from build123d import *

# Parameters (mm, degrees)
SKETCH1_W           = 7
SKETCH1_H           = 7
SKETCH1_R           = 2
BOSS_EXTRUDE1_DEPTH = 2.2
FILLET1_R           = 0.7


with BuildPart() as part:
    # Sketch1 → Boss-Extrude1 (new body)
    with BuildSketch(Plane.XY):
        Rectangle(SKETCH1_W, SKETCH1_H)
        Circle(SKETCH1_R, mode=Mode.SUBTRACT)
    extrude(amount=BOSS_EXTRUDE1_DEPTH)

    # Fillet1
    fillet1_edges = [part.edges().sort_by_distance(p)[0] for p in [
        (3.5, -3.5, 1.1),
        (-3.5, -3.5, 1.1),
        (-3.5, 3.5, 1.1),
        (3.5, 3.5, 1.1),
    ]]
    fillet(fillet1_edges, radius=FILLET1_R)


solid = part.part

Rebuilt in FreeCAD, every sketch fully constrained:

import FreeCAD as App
import Part
import Sketcher

V = App.Vector
Q = App.Units.Quantity


def edges_at(feature, points):
    """Names of the edges that pass closest to the given points."""
    edges = feature.Shape.Edges
    near = lambda p: min(range(len(edges)), key=lambda i: edges[i].distToShape(Part.Vertex(*p))[0])
    return sorted({f"Edge{near(p) + 1}" for p in points})

doc = App.newDocument("Part")
body = doc.addObject("PartDesign::Body", "Body")

# Sketch on XY plane
sketch1 = body.newObject("Sketcher::SketchObject", "Sketch")
sketch1.AttachmentSupport = (doc.getObject("XY_Plane"), [""])
sketch1.MapMode = "FlatFace"
sketch1.addGeometry([
    Part.LineSegment(V(-3.5, 3.5, 0), V(-3.5, -3.5, 0)),  # 0
    Part.LineSegment(V(-3.5, -3.5, 0), V(3.5, -3.5, 0)),  # 1
    Part.LineSegment(V(3.5, -3.5, 0), V(3.5, 3.5, 0)),  # 2
    Part.LineSegment(V(3.5, 3.5, 0), V(-3.5, 3.5, 0)),  # 3
    Part.Circle(V(0, 0, 0), V(0, 0, 1), 2),  # 4
], False)
sketch1.addConstraint([
    Sketcher.Constraint("Coincident", 0, 2, 1, 1),
    Sketcher.Constraint("Coincident", 1, 2, 2, 1),
    Sketcher.Constraint("Coincident", 2, 2, 3, 1),
    Sketcher.Constraint("Coincident", 3, 2, 0, 1),
    Sketcher.Constraint("Vertical", 0),
    Sketcher.Constraint("Horizontal", 1),
    Sketcher.Constraint("Vertical", 2),
    Sketcher.Constraint("Horizontal", 3),
    Sketcher.Constraint("Coincident", 4, 3, -1, 1),
    Sketcher.Constraint("Symmetric", 0, 2, 2, 2, -1, 1),
    Sketcher.Constraint("Equal", 3, 0),
    Sketcher.Constraint("Diameter", 4, Q("4 mm")),
    Sketcher.Constraint("DistanceX", 1, 1, 1, 2, Q("7 mm")),
])
pad1 = body.newObject("PartDesign::Pad", "Pad")
pad1.Profile = sketch1
pad1.Length = 2.2
doc.recompute()

fillet = body.newObject("PartDesign::Fillet", "Fillet")
fillet.Base = (pad1, edges_at(pad1, [
    (3.5, -3.5, 1.1),
    (-3.5, -3.5, 1.1),
    (-3.5, 3.5, 1.1),
    (3.5, 3.5, 1.1),
]))
fillet.Radius = 0.7

doc.recompute()
